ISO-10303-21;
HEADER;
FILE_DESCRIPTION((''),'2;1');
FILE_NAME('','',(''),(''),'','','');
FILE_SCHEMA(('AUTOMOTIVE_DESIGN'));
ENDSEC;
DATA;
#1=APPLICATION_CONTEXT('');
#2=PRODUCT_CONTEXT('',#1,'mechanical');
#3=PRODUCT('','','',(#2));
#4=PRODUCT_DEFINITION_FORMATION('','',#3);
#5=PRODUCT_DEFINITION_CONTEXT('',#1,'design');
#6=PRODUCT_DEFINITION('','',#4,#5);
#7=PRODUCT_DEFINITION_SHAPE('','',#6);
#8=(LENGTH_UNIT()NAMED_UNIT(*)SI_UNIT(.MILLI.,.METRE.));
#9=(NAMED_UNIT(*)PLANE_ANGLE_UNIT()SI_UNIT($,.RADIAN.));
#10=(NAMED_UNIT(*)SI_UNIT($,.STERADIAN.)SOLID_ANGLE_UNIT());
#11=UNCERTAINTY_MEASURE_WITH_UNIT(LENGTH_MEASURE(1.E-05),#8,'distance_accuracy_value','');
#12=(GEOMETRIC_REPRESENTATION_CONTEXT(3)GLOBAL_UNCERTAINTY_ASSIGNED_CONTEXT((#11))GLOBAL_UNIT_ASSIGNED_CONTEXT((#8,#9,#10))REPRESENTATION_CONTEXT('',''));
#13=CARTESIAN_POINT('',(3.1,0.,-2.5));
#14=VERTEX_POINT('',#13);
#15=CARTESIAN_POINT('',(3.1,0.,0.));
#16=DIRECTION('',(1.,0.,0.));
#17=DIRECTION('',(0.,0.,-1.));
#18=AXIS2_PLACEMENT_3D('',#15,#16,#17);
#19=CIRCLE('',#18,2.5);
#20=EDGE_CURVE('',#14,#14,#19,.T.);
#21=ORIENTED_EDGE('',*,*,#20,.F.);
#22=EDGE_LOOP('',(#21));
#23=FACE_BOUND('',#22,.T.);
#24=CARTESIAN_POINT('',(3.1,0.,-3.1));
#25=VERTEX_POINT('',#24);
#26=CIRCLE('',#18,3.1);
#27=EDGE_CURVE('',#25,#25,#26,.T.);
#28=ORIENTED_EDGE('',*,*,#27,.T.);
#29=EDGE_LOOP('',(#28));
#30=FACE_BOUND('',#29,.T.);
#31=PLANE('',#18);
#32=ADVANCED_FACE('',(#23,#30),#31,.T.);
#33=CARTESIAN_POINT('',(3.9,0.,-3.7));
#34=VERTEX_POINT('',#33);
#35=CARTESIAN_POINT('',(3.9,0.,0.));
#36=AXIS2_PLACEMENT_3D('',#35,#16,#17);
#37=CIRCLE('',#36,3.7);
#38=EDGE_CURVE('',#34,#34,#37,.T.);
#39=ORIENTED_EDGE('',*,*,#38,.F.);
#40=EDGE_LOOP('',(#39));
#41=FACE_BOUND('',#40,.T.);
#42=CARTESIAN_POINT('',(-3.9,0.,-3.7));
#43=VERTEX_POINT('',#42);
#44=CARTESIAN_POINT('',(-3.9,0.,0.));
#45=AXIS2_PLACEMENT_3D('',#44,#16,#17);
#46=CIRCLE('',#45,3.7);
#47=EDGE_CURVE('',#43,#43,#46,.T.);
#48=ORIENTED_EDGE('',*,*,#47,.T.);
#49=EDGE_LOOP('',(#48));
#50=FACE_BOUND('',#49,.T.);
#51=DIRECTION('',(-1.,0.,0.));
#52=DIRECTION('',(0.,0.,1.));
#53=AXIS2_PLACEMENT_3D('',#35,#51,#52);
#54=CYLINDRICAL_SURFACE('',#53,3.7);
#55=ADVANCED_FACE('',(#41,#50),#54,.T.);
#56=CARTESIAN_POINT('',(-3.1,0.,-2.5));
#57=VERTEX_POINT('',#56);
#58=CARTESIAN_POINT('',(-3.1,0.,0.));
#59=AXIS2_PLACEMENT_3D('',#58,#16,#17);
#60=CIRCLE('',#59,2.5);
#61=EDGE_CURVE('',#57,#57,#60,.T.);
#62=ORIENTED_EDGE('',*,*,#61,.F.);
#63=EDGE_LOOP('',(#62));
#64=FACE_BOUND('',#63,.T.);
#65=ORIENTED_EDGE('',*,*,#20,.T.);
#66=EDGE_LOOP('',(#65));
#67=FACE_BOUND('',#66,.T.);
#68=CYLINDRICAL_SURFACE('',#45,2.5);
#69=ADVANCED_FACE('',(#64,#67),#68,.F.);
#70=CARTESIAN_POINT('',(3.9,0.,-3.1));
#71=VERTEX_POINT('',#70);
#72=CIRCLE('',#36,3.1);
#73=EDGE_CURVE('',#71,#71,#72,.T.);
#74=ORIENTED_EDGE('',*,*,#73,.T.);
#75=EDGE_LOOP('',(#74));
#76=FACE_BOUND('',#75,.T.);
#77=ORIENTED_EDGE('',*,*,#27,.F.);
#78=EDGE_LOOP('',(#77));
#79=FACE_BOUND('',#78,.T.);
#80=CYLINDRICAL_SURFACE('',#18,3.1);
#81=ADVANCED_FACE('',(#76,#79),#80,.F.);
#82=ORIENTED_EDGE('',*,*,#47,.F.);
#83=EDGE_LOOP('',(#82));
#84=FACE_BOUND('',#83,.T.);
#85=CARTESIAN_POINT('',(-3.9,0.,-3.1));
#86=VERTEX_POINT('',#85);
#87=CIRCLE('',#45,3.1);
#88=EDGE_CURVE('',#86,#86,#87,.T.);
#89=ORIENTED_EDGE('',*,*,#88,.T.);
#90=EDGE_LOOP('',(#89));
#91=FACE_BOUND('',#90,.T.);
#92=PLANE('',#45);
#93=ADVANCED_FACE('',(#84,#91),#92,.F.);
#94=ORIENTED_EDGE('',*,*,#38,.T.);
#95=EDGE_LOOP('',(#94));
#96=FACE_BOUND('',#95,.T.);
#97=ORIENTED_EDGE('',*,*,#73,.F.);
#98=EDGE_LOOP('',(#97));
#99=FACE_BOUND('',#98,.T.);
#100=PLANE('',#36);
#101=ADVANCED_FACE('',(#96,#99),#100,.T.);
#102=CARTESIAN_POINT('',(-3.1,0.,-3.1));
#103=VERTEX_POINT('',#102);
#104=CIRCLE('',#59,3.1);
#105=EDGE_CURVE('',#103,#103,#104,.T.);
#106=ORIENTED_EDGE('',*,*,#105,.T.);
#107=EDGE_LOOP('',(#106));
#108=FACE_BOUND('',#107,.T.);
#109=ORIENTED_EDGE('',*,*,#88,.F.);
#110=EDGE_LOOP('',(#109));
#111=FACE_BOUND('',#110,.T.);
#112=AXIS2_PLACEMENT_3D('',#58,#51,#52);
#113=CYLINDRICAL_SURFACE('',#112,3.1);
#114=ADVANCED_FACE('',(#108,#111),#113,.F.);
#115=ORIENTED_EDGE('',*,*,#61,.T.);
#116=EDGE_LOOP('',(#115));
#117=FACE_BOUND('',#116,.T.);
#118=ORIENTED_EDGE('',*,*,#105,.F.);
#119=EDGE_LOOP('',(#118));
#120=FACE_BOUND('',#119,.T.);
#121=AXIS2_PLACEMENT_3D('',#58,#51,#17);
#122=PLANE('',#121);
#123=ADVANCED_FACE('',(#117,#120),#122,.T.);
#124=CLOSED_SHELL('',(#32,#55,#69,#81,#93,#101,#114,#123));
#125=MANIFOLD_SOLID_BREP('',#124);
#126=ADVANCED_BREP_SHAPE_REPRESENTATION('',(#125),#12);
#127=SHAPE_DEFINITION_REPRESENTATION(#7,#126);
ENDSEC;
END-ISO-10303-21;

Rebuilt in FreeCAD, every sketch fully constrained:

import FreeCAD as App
import Part
import Sketcher
from FreeCAD import Vector

doc = App.newDocument("Part")
body = doc.addObject("PartDesign::Body", "Body")

# Sketch on YZ plane
sketch1 = body.newObject("Sketcher::SketchObject", "Sketch")
sketch1.AttachmentSupport = (doc.getObject("YZ_Plane"), [""])
sketch1.MapMode = "FlatFace"
sketch1.addGeometry(Part.Circle(Vector(0, 0, 0), Vector(0, 0, 1), 3.7), False)
sketch1.addConstraint([
    Sketcher.Constraint("Coincident", 0, 3, -1, 1),
    Sketcher.Constraint("Diameter", 0, 7.4),
])
pad1 = body.newObject("PartDesign::Pad", "Pad")
pad1.Profile = sketch1
pad1.Length = 7.8
pad1.Midplane = True

# Sketch on YZ plane
sketch2 = body.newObject("Sketcher::SketchObject", "Sketch001")
sketch2.AttachmentSupport = (doc.getObject("YZ_Plane"), [""])
sketch2.MapMode = "FlatFace"
sketch2.AttachmentOffset = App.Placement(Vector(0, 0, 3.9), App.Rotation())
sketch2.addGeometry(Part.Circle(Vector(0, 0, 0), Vector(0, 0, 1), 2.5), False)
sketch2.addConstraint([
    Sketcher.Constraint("Coincident", 0, 3, -1, 1),
    Sketcher.Constraint("Diameter", 0, 5.0),
])
pocket1 = body.newObject("PartDesign::Pocket", "Pocket")
pocket1.Profile = sketch2
pocket1.Type = "ThroughAll"

# Sketch on YZ plane
sketch3 = body.newObject("Sketcher::SketchObject", "Sketch002")
sketch3.AttachmentSupport = (doc.getObject("YZ_Plane"), [""])
sketch3.MapMode = "FlatFace"
sketch3.AttachmentOffset = App.Placement(Vector(0, 0, 3.9), App.Rotation())
sketch3.addGeometry([
    Part.Circle(Vector(0, 0, 0), Vector(0, 0, 1), 3.1),
    Part.Circle(Vector(0, 0, 0), Vector(0, 0, 1), 2.5),
], False)
sketch3.addConstraint([
    Sketcher.Constraint("Coincident", 0, 3, -1, 1),
    Sketcher.Constraint("Coincident", 1, 3, -1, 1),
    Sketcher.Constraint("Diameter", 1, 5.0),
    Sketcher.Constraint("Diameter", 0, 6.2),
])
pocket2 = body.newObject("PartDesign::Pocket", "Pocket001")
pocket2.Profile = sketch3
pocket2.Length = 0.8
doc.recompute()

mirrored = body.newObject("PartDesign::Mirrored", "Mirrored")
mirrored.Originals = [pocket2]
mirrored.MirrorPlane = (doc.getObject("YZ_Plane"), [""])
body.Tip = mirrored

doc.recompute()
